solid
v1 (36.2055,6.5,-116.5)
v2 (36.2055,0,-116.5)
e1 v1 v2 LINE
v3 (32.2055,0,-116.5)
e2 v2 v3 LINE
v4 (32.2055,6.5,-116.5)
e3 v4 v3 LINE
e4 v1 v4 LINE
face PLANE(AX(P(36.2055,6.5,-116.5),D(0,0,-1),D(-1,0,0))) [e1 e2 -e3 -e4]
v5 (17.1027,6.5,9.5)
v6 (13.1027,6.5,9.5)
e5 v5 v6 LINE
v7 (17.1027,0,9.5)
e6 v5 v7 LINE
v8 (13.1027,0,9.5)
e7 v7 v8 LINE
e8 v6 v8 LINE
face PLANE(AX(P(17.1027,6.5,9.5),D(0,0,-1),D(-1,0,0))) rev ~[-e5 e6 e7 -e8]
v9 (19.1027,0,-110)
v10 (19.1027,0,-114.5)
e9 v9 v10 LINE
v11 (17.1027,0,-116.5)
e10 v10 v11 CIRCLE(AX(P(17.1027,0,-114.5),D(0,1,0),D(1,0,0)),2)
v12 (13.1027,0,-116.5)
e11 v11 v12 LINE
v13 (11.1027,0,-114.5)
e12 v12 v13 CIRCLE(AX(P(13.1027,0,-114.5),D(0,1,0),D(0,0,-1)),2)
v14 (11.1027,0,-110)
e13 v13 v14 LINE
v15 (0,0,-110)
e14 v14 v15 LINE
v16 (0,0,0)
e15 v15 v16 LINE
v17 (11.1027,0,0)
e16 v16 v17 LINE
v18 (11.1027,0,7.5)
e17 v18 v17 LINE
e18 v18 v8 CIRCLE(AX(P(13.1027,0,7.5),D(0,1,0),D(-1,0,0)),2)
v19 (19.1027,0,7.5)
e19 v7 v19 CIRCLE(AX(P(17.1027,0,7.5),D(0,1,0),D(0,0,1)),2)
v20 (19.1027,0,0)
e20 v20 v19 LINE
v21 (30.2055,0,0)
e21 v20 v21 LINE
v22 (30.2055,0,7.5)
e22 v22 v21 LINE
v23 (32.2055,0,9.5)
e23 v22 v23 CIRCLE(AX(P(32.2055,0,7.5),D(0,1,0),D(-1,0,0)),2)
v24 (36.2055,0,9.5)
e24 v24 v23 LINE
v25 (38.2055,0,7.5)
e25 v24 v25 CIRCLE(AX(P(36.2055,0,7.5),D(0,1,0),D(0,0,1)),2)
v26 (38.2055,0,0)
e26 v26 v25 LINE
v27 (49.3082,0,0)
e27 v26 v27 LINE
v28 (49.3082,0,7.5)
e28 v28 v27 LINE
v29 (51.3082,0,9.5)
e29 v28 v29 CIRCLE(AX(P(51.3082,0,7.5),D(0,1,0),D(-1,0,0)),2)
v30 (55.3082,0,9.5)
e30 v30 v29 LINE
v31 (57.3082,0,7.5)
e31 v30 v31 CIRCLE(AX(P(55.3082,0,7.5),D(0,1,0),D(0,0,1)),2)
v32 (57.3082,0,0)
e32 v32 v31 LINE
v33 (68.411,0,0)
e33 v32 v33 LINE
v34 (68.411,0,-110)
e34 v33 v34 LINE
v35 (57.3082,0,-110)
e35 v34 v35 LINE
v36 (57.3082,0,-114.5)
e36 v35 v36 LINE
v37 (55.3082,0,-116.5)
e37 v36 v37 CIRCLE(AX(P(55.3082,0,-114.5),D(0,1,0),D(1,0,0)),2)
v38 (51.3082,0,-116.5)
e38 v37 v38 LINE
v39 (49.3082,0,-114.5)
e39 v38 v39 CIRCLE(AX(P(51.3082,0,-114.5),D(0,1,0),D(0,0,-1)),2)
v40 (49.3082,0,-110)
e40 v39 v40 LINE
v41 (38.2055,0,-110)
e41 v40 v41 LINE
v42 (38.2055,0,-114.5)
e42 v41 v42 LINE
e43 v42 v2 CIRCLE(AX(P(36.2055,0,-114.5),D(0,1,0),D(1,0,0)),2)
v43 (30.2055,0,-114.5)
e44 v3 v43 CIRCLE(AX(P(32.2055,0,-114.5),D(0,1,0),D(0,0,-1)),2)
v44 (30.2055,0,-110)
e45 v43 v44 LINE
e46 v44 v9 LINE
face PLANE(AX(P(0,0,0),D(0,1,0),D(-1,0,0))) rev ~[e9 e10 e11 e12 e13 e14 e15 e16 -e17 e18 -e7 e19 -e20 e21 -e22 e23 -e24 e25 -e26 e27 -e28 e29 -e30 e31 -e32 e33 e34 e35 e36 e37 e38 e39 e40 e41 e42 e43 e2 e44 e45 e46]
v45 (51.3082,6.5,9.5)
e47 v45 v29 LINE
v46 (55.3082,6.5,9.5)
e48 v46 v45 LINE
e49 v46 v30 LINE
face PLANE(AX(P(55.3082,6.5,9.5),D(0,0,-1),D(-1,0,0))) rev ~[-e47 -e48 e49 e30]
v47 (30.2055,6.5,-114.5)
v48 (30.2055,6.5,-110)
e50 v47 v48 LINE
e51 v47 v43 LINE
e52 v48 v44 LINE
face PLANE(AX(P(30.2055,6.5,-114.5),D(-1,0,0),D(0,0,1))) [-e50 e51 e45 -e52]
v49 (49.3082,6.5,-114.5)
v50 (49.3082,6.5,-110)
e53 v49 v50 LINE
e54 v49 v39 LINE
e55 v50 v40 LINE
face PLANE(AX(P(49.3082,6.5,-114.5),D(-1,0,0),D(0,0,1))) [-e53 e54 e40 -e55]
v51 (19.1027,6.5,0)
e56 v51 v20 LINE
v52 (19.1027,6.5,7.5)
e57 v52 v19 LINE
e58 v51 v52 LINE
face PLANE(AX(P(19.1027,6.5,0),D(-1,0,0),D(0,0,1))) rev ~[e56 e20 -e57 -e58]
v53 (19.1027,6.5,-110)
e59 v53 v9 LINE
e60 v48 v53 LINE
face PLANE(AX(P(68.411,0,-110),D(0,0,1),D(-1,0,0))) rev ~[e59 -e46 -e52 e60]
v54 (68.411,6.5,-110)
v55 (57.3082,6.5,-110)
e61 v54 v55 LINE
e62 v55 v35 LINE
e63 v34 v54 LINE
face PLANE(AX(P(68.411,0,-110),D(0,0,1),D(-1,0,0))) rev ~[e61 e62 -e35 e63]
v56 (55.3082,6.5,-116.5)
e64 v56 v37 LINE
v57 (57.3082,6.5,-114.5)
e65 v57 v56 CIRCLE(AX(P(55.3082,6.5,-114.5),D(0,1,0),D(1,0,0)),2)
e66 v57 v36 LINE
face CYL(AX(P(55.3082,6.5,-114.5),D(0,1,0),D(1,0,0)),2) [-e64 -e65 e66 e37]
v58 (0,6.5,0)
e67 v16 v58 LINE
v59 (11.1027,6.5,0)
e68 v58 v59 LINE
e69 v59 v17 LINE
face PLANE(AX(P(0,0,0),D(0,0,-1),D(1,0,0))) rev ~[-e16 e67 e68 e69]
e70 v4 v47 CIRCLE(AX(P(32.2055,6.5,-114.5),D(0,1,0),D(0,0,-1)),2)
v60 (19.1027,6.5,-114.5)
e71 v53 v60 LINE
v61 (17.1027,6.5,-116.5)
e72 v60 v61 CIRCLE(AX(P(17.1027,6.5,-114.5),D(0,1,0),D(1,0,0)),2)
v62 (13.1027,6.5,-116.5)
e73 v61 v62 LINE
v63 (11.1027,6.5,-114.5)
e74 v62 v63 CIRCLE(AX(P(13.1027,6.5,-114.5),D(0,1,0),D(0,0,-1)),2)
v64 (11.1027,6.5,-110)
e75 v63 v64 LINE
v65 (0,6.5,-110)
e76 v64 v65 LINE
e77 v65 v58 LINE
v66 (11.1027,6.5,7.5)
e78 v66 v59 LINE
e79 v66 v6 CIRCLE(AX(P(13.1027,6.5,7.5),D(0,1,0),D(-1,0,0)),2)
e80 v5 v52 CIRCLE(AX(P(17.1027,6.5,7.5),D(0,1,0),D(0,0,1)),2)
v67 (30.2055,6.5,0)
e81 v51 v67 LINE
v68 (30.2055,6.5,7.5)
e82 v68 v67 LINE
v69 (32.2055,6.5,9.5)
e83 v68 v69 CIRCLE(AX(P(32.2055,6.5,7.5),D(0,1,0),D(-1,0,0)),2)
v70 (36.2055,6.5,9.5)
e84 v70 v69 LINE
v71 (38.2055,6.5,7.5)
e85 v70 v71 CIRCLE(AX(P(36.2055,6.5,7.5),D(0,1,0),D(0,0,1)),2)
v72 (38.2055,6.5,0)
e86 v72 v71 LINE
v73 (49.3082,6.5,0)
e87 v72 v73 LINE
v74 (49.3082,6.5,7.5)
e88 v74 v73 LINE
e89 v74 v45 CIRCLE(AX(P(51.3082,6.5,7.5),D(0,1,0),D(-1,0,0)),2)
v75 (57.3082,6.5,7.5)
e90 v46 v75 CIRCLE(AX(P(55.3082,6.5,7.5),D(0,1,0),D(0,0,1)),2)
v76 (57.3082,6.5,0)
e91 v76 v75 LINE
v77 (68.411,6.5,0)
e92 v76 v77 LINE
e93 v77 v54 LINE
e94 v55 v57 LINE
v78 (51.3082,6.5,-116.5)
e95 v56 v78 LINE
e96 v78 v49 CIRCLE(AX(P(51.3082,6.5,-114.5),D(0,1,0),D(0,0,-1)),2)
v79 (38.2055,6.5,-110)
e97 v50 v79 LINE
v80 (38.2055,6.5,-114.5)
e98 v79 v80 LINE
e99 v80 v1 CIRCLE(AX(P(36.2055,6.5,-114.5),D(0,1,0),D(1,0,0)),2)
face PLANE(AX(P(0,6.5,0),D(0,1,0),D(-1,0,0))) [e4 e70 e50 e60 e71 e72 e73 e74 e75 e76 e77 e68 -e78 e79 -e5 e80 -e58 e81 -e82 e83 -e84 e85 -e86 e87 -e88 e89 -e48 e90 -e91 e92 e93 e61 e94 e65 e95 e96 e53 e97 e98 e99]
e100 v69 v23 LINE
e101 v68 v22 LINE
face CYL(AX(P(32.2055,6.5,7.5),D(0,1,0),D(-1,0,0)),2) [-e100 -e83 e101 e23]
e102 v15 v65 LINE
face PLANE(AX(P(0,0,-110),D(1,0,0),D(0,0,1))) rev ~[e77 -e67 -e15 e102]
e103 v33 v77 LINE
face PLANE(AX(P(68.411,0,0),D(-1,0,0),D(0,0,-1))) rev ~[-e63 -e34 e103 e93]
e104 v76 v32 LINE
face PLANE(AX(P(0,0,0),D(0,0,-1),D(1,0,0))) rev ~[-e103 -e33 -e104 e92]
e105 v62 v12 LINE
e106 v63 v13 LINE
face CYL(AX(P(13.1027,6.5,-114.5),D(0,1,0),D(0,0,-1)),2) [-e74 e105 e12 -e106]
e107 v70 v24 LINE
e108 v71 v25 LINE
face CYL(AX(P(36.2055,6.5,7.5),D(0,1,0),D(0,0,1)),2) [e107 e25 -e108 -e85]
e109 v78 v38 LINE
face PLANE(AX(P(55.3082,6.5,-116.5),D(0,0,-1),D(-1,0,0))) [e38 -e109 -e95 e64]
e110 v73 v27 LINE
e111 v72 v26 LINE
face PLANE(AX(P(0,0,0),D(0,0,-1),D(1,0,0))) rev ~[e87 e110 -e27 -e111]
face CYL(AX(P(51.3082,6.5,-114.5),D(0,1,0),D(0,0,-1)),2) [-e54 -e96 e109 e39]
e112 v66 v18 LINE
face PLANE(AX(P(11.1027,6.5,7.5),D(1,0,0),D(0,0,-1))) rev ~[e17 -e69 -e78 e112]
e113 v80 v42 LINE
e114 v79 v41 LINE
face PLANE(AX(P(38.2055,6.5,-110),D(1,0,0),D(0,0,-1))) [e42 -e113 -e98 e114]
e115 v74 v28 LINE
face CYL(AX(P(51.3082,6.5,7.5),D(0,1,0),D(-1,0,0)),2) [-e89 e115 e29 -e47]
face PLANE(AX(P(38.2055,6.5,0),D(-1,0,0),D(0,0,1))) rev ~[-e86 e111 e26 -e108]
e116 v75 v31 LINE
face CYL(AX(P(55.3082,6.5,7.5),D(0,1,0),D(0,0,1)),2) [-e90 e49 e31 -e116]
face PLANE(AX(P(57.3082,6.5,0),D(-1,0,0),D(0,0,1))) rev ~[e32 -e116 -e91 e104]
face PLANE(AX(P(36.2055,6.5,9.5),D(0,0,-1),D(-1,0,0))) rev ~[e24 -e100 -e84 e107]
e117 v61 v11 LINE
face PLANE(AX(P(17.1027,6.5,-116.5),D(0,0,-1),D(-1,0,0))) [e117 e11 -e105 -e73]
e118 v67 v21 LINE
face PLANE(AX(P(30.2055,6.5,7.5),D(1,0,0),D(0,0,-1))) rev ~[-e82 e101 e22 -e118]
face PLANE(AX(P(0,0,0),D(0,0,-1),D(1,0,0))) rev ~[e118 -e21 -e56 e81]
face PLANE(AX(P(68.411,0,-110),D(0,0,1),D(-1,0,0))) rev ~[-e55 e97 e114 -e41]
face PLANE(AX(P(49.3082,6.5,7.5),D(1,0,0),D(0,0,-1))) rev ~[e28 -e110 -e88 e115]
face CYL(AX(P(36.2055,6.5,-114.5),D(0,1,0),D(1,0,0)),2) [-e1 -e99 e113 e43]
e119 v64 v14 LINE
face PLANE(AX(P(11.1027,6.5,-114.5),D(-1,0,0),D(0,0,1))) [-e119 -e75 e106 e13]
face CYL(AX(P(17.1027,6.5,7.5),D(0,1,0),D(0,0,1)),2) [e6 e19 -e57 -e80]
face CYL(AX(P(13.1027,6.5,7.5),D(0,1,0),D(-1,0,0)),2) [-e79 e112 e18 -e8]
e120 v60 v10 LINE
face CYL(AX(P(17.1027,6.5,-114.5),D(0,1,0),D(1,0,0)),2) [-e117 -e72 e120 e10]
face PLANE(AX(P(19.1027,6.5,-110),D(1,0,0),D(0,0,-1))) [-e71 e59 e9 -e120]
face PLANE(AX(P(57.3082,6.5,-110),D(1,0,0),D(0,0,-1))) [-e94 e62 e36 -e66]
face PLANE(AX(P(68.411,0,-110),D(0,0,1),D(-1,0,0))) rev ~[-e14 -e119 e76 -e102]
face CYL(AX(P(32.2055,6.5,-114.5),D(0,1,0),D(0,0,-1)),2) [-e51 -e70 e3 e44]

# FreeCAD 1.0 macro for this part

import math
import FreeCAD as App
import Part
import Sketcher
from FreeCAD import Vector
Q = App.Units.Quantity

doc = App.newDocument("Part")
body = doc.addObject("PartDesign::Body", "Body")

# Sketch on XZ plane
sketch1 = body.newObject("Sketcher::SketchObject", "Sketch")
sketch1.AttachmentSupport = (doc.getObject("XZ_Plane"), [""])
sketch1.MapMode = "FlatFace"
sketch1.addGeometry([
    Part.LineSegment(Vector(0, -110, 0), Vector(0, 0, 0)),
    Part.LineSegment(Vector(0, 0, 0), Vector(68.411, 0, 0)),
    Part.LineSegment(Vector(68.411, 0, 0), Vector(68.411, -110, 0)),
    Part.LineSegment(Vector(68.411, -110, 0), Vector(0, -110, 0)),
], False)
sketch1.addConstraint([
    Sketcher.Constraint("Coincident", 0, 2, 1, 1),
    Sketcher.Constraint("Coincident", 1, 2, 2, 1),
    Sketcher.Constraint("Coincident", 2, 2, 3, 1),
    Sketcher.Constraint("Coincident", 3, 2, 0, 1),
    Sketcher.Constraint("Vertical", 0),
    Sketcher.Constraint("Horizontal", 1),
    Sketcher.Constraint("Vertical", 2),
    Sketcher.Constraint("Horizontal", 3),
    Sketcher.Constraint("Coincident", 0, 2, -1, 1),
    Sketcher.Constraint("DistanceY", 0, 1, 0, 2, Q("110 mm")),
    Sketcher.Constraint("DistanceX", 1, 1, 1, 2, Q("68.411 mm")),
])
pad1 = body.newObject("PartDesign::Pad", "Pad")
pad1.Profile = sketch1
pad1.Length = 6.5
pad1.Reversed = True

# Sketch on XZ plane
sketch2 = body.newObject("Sketcher::SketchObject", "Sketch001")
sketch2.AttachmentSupport = (doc.getObject("XZ_Plane"), [""])
sketch2.MapMode = "FlatFace"
sketch2.AttachmentOffset = App.Placement(Vector(0, 0, -6.5), App.Rotation())
sketch2.addGeometry([
    Part.LineSegment(Vector(57.3082, 7.5, 0), Vector(57.3082, 0, 0)),  # 0
    Part.LineSegment(Vector(57.3082, 0, 0), Vector(49.3082, 0, 0)),  # 1
    Part.LineSegment(Vector(49.3082, 0, 0), Vector(49.3082, 7.5, 0)),  # 2
    Part.ArcOfCircle(Part.Circle(Vector(51.3082, 7.5, 0), Vector(0, 0, 1), 2), math.radians(90), math.radians(180)),  # 3
    Part.LineSegment(Vector(51.3082, 9.5, 0), Vector(55.3082, 9.5, 0)),  # 4
    Part.ArcOfCircle(Part.Circle(Vector(55.3082, 7.5, 0), Vector(0, 0, 1), 2), math.radians(0), math.radians(90)),  # 5
    Part.LineSegment(Vector(49.3082, -110, 0), Vector(57.3082, -110, 0)),  # 6
    Part.LineSegment(Vector(57.3082, -110, 0), Vector(57.3082, -114.5, 0)),  # 7
    Part.ArcOfCircle(Part.Circle(Vector(55.3082, -114.5, 0), Vector(0, 0, 1), 2), math.radians(-90), math.radians(0)),  # 8
    Part.LineSegment(Vector(55.3082, -116.5, 0), Vector(51.3082, -116.5, 0)),  # 9
    Part.ArcOfCircle(Part.Circle(Vector(51.3082, -114.5, 0), Vector(0, 0, 1), 2), math.radians(180), math.radians(270)),  # 10
    Part.LineSegment(Vector(49.3082, -114.5, 0), Vector(49.3082, -110, 0)),  # 11
    Part.LineSegment(Vector(38.2055, 7.5, 0), Vector(38.2055, 0, 0)),  # 12
    Part.LineSegment(Vector(38.2055, 0, 0), Vector(30.2055, 0, 0)),  # 13
    Part.LineSegment(Vector(30.2055, 0, 0), Vector(30.2055, 7.5, 0)),  # 14
    Part.ArcOfCircle(Part.Circle(Vector(32.2055, 7.5, 0), Vector(0, 0, 1), 2), math.radians(90), math.radians(180)),  # 15
    Part.LineSegment(Vector(32.2055, 9.5, 0), Vector(36.2055, 9.5, 0)),  # 16
    Part.ArcOfCircle(Part.Circle(Vector(36.2055, 7.5, 0), Vector(0, 0, 1), 2), math.radians(0), math.radians(90)),  # 17
    Part.LineSegment(Vector(30.2055, -110, 0), Vector(38.2055, -110, 0)),  # 18
    Part.LineSegment(Vector(38.2055, -110, 0), Vector(38.2055, -114.5, 0)),  # 19
    Part.ArcOfCircle(Part.Circle(Vector(36.2055, -114.5, 0), Vector(0, 0, 1), 2), math.radians(-90), math.radians(0)),  # 20
    Part.LineSegment(Vector(36.2055, -116.5, 0), Vector(32.2055, -116.5, 0)),  # 21
    Part.ArcOfCircle(Part.Circle(Vector(32.2055, -114.5, 0), Vector(0, 0, 1), 2), math.radians(180), math.radians(270)),  # 22
    Part.LineSegment(Vector(30.2055, -114.5, 0), Vector(30.2055, -110, 0)),  # 23
    Part.LineSegment(Vector(19.1027, 7.5, 0), Vector(19.1027, 0, 0)),  # 24
    Part.LineSegment(Vector(19.1027, 0, 0), Vector(11.1027, 0, 0)),  # 25
    Part.LineSegment(Vector(11.1027, 0, 0), Vector(11.1027, 7.5, 0)),  # 26
    Part.ArcOfCircle(Part.Circle(Vector(13.1027, 7.5, 0), Vector(0, 0, 1), 2), math.radians(90), math.radians(180)),  # 27
    Part.LineSegment(Vector(13.1027, 9.5, 0), Vector(17.1027, 9.5, 0)),  # 28
    Part.ArcOfCircle(Part.Circle(Vector(17.1027, 7.5, 0), Vector(0, 0, 1), 2), math.radians(0), math.radians(90)),  # 29
    Part.LineSegment(Vector(11.1027, -110, 0), Vector(19.1027, -110, 0)),  # 30
    Part.LineSegment(Vector(19.1027, -110, 0), Vector(19.1027, -114.5, 0)),  # 31
    Part.ArcOfCircle(Part.Circle(Vector(17.1027, -114.5, 0), Vector(0, 0, 1), 2), math.radians(-90), math.radians(0)),  # 32
    Part.LineSegment(Vector(17.1027, -116.5, 0), Vector(13.1027, -116.5, 0)),  # 33
    Part.ArcOfCircle(Part.Circle(Vector(13.1027, -114.5, 0), Vector(0, 0, 1), 2), math.radians(180), math.radians(270)),  # 34
    Part.LineSegment(Vector(11.1027, -114.5, 0), Vector(11.1027, -110, 0)),  # 35
], False)
sketch2.addConstraint([
    Sketcher.Constraint("Coincident", 0, 2, 1, 1),
    Sketcher.Constraint("Coincident", 1, 2, 2, 1),
    Sketcher.Constraint("Tangent", 2, 2, 3, 2),
    Sketcher.Constraint("Tangent", 3, 1, 4, 1),
    Sketcher.Constraint("Tangent", 4, 2, 5, 2),
    Sketcher.Constraint("Tangent", 5, 1, 0, 1),
    Sketcher.Constraint("Coincident", 6, 2, 7, 1),
    Sketcher.Constraint("Tangent", 7, 2, 8, 2),
    Sketcher.Constraint("Tangent", 8, 1, 9, 1),
    Sketcher.Constraint("Tangent", 9, 2, 10, 2),
    Sketcher.Constraint("Tangent", 10, 1, 11, 1),
    Sketcher.Constraint("Coincident", 11, 2, 6, 1),
    Sketcher.Constraint("Coincident", 12, 2, 13, 1),
    Sketcher.Constraint("Coincident", 13, 2, 14, 1),
    Sketcher.Constraint("Tangent", 14, 2, 15, 2),
    Sketcher.Constraint("Tangent", 15, 1, 16, 1),
    Sketcher.Constraint("Tangent", 16, 2, 17, 2),
    Sketcher.Constraint("Tangent", 17, 1, 12, 1),
    Sketcher.Constraint("Coincident", 18, 2, 19, 1),
    Sketcher.Constraint("Tangent", 19, 2, 20, 2),
    Sketcher.Constraint("Tangent", 20, 1, 21, 1),
    Sketcher.Constraint("Tangent", 21, 2, 22, 2),
    Sketcher.Constraint("Tangent", 22, 1, 23, 1),
    Sketcher.Constraint("Coincident", 23, 2, 18, 1),
    Sketcher.Constraint("Coincident", 24, 2, 25, 1),
    Sketcher.Constraint("Coincident", 25, 2, 26, 1),
    Sketcher.Constraint("Tangent", 26, 2, 27, 2),
    Sketcher.Constraint("Tangent", 27, 1, 28, 1),
    Sketcher.Constraint("Tangent", 28, 2, 29, 2),
    Sketcher.Constraint("Tangent", 29, 1, 24, 1),
    Sketcher.Constraint("Coincident", 30, 2, 31, 1),
    Sketcher.Constraint("Tangent", 31, 2, 32, 2),
    Sketcher.Constraint("Tangent", 32, 1, 33, 1),
    Sketcher.Constraint("Tangent", 33, 2, 34, 2),
    Sketcher.Constraint("Tangent", 34, 1, 35, 1),
    Sketcher.Constraint("Coincident", 35, 2, 30, 1),
    Sketcher.Constraint("Vertical", 0),
    Sketcher.Constraint("Horizontal", 1),
    Sketcher.Constraint("Vertical", 2),
    Sketcher.Constraint("Horizontal", 4),
    Sketcher.Constraint("Horizontal", 6),
    Sketcher.Constraint("Vertical", 7),
    Sketcher.Constraint("Horizontal", 9),
    Sketcher.Constraint("Vertical", 11),
    Sketcher.Constraint("Vertical", 12),
    Sketcher.Constraint("Horizontal", 13),
    Sketcher.Constraint("Vertical", 14),
    Sketcher.Constraint("Horizontal", 16),
    Sketcher.Constraint("Horizontal", 18),
    Sketcher.Constraint("Vertical", 19),
    Sketcher.Constraint("Horizontal", 21),
    Sketcher.Constraint("Vertical", 23),
    Sketcher.Constraint("Vertical", 24),
    Sketcher.Constraint("Horizontal", 25),
    Sketcher.Constraint("Vertical", 26),
    Sketcher.Constraint("Horizontal", 28),
    Sketcher.Constraint("Horizontal", 30),
    Sketcher.Constraint("Vertical", 31),
    Sketcher.Constraint("Horizontal", 33),
    Sketcher.Constraint("Vertical", 35),
    Sketcher.Constraint("Equal", 3, 5),
    Sketcher.Constraint("Equal", 5, 8),
    Sketcher.Constraint("Equal", 8, 10),
    Sketcher.Constraint("Equal", 10, 15),
    Sketcher.Constraint("Equal", 15, 17),
    Sketcher.Constraint("Equal", 17, 20),
    Sketcher.Constraint("Equal", 20, 22),
    Sketcher.Constraint("Equal", 22, 27),
    Sketcher.Constraint("Equal", 27, 29),
    Sketcher.Constraint("Equal", 29, 32),
    Sketcher.Constraint("Equal", 32, 34),
    Sketcher.Constraint("PointOnObject", 0, 2, -1),
    Sketcher.Constraint("PointOnObject", 12, 2, -1),
    Sketcher.Constraint("PointOnObject", 24, 2, -1),
    Sketcher.Constraint("Horizontal", 5, 3, 15, 3),
    Sketcher.Constraint("Horizontal", 10, 3, 20, 3),
    Sketcher.Constraint("Horizontal", 17, 3, 27, 3),
    Sketcher.Constraint("Horizontal", 22, 3, 32, 3),
    Sketcher.Constraint("Horizontal", 11, 2, 18, 2),
    Sketcher.Constraint("Horizontal", 23, 2, 30, 2),
    Sketcher.Constraint("Vertical", 5, 3, 8, 3),
    Sketcher.Constraint("Vertical", 3, 3, 10, 3),
    Sketcher.Constraint("Vertical", 17, 3, 20, 3),
    Sketcher.Constraint("Vertical", 15, 3, 22, 3),
    Sketcher.Constraint("Vertical", 29, 3, 32, 3),
    Sketcher.Constraint("Vertical", 27, 3, 34, 3),
    Sketcher.Constraint("Equal", 6, 13),
    Sketcher.Constraint("Equal", 18, 25),
    Sketcher.Constraint("Radius", 3, Q("2 mm")),
    Sketcher.Constraint("DistanceX", 1, 2, 1, 1, Q("8 mm")),
    Sketcher.Constraint("DistanceY", -1, 1, 3, 1, Q("9.5 mm")),
    Sketcher.Constraint("DistanceY", 8, 1, 6, 2, Q("6.5 mm")),
    Sketcher.Constraint("DistanceY", 6, 2, -1, 1, Q("110 mm")),
    Sketcher.Constraint("DistanceX", -1, 1, 3, 3, Q("51.3082 mm")),
    Sketcher.Constraint("DistanceX", -1, 1, 15, 3, Q("32.2055 mm")),
    Sketcher.Constraint("DistanceX", -1, 1, 27, 3, Q("13.1027 mm")),
])
pad2 = body.newObject("PartDesign::Pad", "Pad001")
pad2.Profile = sketch2
pad2.Length = 6.5

doc.recompute()
